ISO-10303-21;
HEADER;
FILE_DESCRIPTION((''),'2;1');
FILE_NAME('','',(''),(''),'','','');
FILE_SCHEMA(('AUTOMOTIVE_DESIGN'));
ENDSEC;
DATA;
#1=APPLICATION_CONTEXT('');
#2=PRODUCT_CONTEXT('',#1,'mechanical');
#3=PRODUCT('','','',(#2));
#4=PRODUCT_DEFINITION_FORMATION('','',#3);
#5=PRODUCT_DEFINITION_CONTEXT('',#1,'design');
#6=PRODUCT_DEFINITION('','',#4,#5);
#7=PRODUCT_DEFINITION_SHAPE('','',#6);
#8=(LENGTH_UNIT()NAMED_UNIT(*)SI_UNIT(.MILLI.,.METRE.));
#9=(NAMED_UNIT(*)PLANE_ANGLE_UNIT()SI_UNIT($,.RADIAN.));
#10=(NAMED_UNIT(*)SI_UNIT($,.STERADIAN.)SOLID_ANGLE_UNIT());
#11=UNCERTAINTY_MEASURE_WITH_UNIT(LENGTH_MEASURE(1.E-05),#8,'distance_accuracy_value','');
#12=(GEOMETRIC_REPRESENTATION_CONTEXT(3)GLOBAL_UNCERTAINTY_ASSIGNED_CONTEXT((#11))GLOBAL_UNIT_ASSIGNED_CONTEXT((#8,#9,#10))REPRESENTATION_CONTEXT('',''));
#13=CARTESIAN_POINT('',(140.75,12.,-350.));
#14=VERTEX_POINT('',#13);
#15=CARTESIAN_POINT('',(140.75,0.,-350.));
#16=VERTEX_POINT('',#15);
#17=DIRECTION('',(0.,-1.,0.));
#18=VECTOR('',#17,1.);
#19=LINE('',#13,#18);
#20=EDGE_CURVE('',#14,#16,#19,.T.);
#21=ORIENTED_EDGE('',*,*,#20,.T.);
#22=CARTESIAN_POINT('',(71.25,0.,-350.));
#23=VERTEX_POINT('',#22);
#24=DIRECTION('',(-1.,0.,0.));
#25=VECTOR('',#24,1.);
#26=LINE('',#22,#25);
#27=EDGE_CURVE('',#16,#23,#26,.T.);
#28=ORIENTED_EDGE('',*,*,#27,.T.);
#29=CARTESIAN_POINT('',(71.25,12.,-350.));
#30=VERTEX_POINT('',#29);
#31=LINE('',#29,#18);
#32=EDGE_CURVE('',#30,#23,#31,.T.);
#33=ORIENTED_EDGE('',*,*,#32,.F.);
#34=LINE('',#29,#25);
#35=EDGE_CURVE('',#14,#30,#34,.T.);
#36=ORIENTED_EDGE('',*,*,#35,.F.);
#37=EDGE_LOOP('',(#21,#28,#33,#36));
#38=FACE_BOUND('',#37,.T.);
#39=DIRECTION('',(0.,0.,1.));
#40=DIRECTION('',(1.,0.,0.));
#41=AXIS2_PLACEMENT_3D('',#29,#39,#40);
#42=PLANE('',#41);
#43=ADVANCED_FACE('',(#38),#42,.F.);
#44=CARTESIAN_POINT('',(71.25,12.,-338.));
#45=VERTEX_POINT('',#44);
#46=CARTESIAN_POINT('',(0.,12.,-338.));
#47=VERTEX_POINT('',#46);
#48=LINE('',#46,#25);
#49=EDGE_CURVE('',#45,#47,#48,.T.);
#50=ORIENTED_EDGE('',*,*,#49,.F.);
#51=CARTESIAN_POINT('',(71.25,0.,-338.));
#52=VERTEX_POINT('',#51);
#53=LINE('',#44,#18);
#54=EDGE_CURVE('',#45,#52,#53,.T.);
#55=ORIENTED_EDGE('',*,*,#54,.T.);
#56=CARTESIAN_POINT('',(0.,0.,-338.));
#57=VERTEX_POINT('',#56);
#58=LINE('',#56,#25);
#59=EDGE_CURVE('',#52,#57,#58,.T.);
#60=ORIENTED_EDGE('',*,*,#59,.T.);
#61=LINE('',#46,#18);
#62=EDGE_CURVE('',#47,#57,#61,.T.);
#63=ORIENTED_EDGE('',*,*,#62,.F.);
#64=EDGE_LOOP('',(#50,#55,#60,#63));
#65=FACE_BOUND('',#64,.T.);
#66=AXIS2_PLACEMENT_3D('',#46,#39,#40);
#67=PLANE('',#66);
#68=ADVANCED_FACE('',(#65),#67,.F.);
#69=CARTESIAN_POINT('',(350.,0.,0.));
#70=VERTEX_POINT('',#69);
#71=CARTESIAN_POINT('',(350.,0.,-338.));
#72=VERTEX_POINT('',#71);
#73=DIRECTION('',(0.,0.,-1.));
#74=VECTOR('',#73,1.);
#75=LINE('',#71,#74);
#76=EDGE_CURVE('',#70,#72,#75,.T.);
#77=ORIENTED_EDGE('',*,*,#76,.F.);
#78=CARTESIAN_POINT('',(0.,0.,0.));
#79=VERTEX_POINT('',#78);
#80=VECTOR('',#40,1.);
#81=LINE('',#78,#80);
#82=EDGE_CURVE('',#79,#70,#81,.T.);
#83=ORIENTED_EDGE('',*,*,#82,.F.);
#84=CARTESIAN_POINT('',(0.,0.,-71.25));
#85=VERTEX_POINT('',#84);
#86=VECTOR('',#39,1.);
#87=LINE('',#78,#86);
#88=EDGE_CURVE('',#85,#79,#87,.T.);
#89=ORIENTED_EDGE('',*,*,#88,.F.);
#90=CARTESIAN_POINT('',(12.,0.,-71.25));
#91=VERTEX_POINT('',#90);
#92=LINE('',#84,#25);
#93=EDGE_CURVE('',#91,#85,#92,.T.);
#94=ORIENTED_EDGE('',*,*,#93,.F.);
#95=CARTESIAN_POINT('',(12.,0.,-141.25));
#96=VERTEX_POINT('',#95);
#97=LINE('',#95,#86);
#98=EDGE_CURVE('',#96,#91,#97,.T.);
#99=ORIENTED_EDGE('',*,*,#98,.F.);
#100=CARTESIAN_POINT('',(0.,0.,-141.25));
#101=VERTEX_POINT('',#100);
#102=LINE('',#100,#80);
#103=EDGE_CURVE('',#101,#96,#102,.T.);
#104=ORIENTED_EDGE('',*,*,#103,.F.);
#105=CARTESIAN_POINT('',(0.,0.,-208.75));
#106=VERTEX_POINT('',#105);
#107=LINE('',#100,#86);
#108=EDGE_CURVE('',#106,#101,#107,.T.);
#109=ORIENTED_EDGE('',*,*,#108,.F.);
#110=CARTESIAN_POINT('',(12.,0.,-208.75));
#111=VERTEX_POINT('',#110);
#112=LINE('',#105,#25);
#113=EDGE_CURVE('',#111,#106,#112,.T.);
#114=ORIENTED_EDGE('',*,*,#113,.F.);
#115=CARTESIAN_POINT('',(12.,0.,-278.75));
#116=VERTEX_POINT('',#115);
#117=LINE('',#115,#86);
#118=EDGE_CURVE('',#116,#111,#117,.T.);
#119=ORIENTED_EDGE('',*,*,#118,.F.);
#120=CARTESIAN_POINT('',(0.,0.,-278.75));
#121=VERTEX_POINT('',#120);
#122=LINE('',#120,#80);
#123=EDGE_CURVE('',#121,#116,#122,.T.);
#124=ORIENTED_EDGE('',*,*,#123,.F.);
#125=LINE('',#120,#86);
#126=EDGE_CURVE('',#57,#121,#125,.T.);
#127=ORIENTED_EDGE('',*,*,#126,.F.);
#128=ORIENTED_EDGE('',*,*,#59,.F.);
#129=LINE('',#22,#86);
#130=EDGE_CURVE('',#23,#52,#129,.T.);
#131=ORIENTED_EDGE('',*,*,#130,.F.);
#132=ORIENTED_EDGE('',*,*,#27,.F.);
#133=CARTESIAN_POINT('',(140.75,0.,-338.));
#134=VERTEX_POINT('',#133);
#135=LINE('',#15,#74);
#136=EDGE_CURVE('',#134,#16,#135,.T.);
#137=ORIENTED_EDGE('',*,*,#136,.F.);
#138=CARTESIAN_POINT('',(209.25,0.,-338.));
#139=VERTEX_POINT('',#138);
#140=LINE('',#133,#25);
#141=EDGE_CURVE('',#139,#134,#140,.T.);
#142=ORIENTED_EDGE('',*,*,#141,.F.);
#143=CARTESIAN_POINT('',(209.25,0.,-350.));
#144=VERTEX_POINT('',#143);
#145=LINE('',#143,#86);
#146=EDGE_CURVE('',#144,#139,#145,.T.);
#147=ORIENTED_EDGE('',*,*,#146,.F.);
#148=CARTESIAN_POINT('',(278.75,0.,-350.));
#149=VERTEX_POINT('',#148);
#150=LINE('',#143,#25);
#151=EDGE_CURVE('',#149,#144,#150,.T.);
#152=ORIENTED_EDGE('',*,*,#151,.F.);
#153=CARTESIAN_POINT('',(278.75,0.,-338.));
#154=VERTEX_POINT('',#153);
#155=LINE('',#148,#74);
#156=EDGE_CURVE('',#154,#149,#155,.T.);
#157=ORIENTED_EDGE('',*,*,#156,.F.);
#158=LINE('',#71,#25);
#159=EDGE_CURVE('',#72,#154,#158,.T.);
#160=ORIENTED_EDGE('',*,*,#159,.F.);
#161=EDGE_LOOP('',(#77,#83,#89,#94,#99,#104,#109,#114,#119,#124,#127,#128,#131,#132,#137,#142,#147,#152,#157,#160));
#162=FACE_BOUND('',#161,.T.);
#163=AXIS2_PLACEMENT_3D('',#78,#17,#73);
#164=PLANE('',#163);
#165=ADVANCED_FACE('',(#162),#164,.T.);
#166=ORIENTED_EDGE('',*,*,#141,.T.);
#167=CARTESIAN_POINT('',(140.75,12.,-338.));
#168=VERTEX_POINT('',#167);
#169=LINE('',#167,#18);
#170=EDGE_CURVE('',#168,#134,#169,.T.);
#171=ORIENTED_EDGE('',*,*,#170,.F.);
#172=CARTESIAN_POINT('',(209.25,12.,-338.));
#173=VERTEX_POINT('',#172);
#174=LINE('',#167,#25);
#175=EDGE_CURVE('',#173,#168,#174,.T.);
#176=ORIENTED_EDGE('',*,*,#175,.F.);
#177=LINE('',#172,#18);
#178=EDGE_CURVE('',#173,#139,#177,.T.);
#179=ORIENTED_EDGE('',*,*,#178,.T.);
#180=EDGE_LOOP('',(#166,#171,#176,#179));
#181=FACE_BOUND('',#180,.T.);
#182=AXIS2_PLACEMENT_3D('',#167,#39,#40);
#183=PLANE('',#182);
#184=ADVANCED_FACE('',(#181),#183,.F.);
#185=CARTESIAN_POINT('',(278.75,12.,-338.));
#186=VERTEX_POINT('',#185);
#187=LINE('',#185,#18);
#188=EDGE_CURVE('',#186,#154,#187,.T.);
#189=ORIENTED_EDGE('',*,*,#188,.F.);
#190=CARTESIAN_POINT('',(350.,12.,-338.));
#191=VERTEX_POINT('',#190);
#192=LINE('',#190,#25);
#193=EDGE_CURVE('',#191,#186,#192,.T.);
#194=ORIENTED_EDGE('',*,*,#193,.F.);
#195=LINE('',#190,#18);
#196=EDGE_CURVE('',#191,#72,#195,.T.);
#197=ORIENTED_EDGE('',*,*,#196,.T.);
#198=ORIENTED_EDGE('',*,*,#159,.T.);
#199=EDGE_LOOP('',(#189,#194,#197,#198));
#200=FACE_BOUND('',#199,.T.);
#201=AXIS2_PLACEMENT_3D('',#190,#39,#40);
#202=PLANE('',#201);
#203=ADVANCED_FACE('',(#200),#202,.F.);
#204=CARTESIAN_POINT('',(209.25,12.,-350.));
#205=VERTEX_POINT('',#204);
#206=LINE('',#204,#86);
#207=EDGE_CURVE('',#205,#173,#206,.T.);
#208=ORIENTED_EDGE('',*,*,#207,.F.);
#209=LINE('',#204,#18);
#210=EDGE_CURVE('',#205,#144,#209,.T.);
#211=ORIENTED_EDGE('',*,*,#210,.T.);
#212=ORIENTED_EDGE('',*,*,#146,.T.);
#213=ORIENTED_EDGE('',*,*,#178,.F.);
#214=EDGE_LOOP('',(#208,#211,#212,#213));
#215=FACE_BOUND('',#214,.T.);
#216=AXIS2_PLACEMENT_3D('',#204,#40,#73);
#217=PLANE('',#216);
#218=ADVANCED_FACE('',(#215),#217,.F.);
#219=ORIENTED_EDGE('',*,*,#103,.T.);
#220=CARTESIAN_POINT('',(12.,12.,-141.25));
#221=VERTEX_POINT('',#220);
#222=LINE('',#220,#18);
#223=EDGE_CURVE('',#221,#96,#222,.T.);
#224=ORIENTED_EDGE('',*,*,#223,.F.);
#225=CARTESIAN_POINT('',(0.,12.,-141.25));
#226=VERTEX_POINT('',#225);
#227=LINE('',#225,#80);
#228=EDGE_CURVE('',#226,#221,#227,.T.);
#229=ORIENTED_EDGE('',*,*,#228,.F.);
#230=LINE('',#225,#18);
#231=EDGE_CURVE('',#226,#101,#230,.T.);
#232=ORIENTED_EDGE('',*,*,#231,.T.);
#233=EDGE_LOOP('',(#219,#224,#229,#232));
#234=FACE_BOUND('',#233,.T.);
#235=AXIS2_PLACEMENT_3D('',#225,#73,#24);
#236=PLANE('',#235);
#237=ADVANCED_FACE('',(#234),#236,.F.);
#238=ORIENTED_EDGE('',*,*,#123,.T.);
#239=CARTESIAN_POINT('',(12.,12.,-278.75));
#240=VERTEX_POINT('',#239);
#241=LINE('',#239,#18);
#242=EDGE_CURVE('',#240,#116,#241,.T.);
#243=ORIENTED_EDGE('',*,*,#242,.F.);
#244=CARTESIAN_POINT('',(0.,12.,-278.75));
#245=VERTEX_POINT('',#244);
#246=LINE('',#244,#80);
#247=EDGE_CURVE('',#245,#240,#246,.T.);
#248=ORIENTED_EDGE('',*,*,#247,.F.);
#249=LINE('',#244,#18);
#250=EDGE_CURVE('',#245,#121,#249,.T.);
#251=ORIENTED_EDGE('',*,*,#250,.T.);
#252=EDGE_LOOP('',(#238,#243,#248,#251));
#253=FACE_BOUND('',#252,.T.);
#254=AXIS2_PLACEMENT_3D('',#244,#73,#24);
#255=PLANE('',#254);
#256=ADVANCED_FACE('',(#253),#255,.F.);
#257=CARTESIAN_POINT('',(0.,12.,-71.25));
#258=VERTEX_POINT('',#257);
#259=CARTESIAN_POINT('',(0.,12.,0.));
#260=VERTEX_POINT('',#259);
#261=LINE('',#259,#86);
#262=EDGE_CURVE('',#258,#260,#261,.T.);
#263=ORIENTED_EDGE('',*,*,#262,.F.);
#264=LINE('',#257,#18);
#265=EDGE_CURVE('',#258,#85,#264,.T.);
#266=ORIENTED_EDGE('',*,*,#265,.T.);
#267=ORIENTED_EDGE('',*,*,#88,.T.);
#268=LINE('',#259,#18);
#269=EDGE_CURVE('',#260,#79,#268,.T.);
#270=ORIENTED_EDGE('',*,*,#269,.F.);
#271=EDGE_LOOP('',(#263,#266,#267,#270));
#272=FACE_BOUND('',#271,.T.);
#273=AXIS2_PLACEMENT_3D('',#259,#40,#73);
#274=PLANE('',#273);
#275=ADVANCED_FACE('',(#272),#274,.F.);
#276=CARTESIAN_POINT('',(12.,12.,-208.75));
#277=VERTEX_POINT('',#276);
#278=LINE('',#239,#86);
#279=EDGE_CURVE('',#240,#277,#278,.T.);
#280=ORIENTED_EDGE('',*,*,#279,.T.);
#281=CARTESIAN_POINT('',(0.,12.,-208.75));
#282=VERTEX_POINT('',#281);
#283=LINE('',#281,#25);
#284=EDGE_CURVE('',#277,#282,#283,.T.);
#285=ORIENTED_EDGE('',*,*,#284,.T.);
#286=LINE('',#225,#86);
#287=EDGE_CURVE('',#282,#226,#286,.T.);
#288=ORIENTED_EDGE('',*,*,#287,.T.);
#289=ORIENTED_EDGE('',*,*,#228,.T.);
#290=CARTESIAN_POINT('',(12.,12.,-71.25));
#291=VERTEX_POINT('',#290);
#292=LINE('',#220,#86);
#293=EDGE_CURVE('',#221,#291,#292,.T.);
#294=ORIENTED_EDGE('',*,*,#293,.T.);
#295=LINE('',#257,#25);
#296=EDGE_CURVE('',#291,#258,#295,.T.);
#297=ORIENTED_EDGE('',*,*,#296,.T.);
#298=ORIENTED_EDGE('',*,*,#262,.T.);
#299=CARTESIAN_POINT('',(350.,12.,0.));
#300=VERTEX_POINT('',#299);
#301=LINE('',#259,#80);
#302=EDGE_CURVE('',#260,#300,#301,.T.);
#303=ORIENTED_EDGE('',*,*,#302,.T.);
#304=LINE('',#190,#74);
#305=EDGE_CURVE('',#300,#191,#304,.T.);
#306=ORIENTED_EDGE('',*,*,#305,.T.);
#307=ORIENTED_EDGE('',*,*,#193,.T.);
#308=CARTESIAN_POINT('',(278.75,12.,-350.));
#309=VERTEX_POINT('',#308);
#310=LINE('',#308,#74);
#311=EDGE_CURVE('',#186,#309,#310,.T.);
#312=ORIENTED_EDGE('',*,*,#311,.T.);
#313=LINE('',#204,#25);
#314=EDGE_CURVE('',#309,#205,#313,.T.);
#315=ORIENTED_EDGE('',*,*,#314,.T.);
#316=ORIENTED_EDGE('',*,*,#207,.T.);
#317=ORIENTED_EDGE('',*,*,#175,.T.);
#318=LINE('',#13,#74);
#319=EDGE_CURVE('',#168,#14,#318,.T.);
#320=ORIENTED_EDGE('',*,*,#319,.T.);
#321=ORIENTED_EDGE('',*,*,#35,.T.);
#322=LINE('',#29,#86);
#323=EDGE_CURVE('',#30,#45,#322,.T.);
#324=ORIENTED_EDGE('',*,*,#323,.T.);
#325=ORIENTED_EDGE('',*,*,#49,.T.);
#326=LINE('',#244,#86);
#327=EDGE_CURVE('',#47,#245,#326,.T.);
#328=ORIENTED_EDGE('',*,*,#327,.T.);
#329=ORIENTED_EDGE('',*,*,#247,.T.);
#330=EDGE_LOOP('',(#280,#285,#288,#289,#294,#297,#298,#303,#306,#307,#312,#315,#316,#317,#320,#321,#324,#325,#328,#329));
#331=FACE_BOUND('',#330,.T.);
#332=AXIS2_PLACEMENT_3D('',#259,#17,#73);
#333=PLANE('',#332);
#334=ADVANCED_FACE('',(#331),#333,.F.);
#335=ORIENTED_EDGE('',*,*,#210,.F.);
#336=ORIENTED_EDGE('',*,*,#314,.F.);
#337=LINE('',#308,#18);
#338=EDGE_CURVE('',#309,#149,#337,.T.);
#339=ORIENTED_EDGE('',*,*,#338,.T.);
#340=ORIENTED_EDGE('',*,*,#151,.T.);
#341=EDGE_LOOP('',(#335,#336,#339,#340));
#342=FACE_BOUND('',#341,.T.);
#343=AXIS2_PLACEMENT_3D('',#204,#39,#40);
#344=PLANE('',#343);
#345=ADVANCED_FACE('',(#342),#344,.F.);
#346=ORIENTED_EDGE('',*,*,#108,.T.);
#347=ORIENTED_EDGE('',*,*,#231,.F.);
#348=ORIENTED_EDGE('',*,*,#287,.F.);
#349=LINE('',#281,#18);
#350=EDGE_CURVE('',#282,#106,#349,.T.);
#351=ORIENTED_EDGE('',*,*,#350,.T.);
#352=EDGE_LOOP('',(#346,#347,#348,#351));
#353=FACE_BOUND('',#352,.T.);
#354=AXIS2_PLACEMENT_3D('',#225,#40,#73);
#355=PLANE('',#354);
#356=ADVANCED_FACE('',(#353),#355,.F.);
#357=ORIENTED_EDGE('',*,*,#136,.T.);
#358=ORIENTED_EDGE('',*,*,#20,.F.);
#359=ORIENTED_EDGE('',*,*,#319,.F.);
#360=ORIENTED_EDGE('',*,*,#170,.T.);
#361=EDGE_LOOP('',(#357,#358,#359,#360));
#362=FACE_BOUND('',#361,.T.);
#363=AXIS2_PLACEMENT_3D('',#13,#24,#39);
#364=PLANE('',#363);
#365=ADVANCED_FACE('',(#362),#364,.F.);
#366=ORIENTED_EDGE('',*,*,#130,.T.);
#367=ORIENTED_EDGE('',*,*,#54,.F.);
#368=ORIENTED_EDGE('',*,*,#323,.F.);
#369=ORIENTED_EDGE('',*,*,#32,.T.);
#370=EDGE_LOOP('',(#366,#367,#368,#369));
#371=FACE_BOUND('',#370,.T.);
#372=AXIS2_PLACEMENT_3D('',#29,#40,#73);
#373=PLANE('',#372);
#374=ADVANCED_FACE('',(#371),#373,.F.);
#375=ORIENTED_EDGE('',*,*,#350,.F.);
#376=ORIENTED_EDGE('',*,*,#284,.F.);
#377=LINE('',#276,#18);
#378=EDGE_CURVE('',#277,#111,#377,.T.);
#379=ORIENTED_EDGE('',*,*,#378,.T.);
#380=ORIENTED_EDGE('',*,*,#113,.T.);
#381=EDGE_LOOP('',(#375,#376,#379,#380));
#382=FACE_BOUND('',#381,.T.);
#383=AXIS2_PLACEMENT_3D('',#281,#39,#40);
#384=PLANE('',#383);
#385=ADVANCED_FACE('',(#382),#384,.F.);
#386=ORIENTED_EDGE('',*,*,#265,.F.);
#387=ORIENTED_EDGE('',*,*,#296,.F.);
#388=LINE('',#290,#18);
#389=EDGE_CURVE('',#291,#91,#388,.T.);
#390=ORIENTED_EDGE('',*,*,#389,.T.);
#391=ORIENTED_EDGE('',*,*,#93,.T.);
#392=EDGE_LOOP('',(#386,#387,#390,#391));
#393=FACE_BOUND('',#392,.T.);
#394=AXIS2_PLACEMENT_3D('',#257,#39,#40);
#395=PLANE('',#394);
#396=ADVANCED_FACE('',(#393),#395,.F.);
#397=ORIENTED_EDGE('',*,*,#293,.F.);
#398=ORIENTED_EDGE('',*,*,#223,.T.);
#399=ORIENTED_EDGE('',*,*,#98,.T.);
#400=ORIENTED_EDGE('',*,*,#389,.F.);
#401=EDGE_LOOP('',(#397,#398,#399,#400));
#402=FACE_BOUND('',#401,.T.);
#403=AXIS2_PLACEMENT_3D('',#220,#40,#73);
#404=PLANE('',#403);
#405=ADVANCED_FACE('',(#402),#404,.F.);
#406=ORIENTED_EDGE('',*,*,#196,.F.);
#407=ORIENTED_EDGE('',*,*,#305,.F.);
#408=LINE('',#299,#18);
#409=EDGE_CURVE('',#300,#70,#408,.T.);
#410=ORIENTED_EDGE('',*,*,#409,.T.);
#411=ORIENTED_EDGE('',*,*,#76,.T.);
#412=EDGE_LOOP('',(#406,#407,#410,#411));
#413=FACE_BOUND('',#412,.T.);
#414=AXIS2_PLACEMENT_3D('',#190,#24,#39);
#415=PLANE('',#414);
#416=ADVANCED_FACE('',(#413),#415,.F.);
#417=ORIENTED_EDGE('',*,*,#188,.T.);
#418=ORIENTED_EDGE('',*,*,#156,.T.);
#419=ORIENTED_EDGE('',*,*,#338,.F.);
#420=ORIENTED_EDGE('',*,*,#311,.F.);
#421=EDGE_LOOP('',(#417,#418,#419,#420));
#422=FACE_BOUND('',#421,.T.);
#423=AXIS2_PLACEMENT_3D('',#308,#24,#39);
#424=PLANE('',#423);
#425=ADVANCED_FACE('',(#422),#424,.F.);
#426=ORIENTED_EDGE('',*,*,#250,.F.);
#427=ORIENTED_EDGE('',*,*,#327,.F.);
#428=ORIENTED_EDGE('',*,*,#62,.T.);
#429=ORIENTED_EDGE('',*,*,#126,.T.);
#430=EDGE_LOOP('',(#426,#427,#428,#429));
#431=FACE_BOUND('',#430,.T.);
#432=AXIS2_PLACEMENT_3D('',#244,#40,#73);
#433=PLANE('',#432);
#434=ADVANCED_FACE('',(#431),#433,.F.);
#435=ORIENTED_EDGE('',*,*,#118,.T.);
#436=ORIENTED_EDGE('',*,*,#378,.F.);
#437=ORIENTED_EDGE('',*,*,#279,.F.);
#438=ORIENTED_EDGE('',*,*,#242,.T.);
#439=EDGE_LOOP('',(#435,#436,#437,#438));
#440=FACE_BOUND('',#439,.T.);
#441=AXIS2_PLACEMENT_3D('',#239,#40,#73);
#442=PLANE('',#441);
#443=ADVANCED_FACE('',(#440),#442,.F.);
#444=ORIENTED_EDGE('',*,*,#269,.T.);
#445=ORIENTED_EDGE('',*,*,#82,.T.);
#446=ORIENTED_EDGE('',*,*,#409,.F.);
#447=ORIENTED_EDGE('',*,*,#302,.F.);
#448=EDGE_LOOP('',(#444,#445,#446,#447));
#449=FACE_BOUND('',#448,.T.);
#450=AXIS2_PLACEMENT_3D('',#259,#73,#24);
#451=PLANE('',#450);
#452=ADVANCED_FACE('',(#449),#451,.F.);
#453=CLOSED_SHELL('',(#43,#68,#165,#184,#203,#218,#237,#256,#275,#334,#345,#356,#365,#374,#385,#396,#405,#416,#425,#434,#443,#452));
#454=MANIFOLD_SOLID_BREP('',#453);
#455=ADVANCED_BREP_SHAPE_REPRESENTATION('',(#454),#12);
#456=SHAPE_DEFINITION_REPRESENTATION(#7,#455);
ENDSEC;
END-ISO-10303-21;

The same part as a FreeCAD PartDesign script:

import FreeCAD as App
import Part
import Sketcher
Q = App.Units.Quantity

doc = App.newDocument("Part")
body = doc.addObject("PartDesign::Body", "Body")

# Sketch on XZ plane
sketch1 = body.newObject("Sketcher::SketchObject", "Sketch")
sketch1.AttachmentSupport = (doc.getObject("XZ_Plane"), [""])
sketch1.MapMode = "FlatFace"
sketch1.addGeometry(Part.LineSegment(App.Vector(279, -350, 0), App.Vector(209, -350, 0)), False)
sketch1.addGeometry(Part.LineSegment(App.Vector(209, -350, 0), App.Vector(209, -338, 0)), False)
sketch1.addGeometry(Part.LineSegment(App.Vector(209, -338, 0), App.Vector(141, -338, 0)), False)
sketch1.addGeometry(Part.LineSegment(App.Vector(141, -338, 0), App.Vector(141, -350, 0)), False)
sketch1.addGeometry(Part.LineSegment(App.Vector(141, -350, 0), App.Vector(71, -350, 0)), False)
sketch1.addGeometry(Part.LineSegment(App.Vector(71, -350, 0), App.Vector(71, -338, 0)), False)
sketch1.addGeometry(Part.LineSegment(App.Vector(71, -338, 0), App.Vector(0, -338, 0)), False)
sketch1.addGeometry(Part.LineSegment(App.Vector(0, -338, 0), App.Vector(0, -279, 0)), False)
sketch1.addGeometry(Part.LineSegment(App.Vector(0, -279, 0), App.Vector(12, -279, 0)), False)
sketch1.addGeometry(Part.LineSegment(App.Vector(12, -279, 0), App.Vector(12, -209, 0)), False)
sketch1.addGeometry(Part.LineSegment(App.Vector(12, -209, 0), App.Vector(0, -209, 0)), False)
sketch1.addGeometry(Part.LineSegment(App.Vector(0, -209, 0), App.Vector(0, -141, 0)), False)
sketch1.addGeometry(Part.LineSegment(App.Vector(0, -141, 0), App.Vector(12, -141, 0)), False)
sketch1.addGeometry(Part.LineSegment(App.Vector(12, -141, 0), App.Vector(12, -71, 0)), False)
sketch1.addGeometry(Part.LineSegment(App.Vector(12, -71, 0), App.Vector(0, -71, 0)), False)
sketch1.addGeometry(Part.LineSegment(App.Vector(0, -71, 0), App.Vector(0, 0, 0)), False)
sketch1.addGeometry(Part.LineSegment(App.Vector(0, 0, 0), App.Vector(350, 0, 0)), False)
sketch1.addGeometry(Part.LineSegment(App.Vector(350, 0, 0), App.Vector(350, -338, 0)), False)
sketch1.addGeometry(Part.LineSegment(App.Vector(350, -338, 0), App.Vector(279, -338, 0)), False)
sketch1.addGeometry(Part.LineSegment(App.Vector(279, -338, 0), App.Vector(279, -350, 0)), False)
sketch1.addConstraint(Sketcher.Constraint("Coincident", 0, 2, 1, 1))
sketch1.addConstraint(Sketcher.Constraint("Coincident", 1, 2, 2, 1))
sketch1.addConstraint(Sketcher.Constraint("Coincident", 2, 2, 3, 1))
sketch1.addConstraint(Sketcher.Constraint("Coincident", 3, 2, 4, 1))
sketch1.addConstraint(Sketcher.Constraint("Coincident", 4, 2, 5, 1))
sketch1.addConstraint(Sketcher.Constraint("Coincident", 5, 2, 6, 1))
sketch1.addConstraint(Sketcher.Constraint("Coincident", 6, 2, 7, 1))
sketch1.addConstraint(Sketcher.Constraint("Coincident", 7, 2, 8, 1))
sketch1.addConstraint(Sketcher.Constraint("Coincident", 8, 2, 9, 1))
sketch1.addConstraint(Sketcher.Constraint("Coincident", 9, 2, 10, 1))
sketch1.addConstraint(Sketcher.Constraint("Coincident", 10, 2, 11, 1))
sketch1.addConstraint(Sketcher.Constraint("Coincident", 11, 2, 12, 1))
sketch1.addConstraint(Sketcher.Constraint("Coincident", 12, 2, 13, 1))
sketch1.addConstraint(Sketcher.Constraint("Coincident", 13, 2, 14, 1))
sketch1.addConstraint(Sketcher.Constraint("Coincident", 14, 2, 15, 1))
sketch1.addConstraint(Sketcher.Constraint("Coincident", 15, 2, 16, 1))
sketch1.addConstraint(Sketcher.Constraint("Coincident", 16, 2, 17, 1))
sketch1.addConstraint(Sketcher.Constraint("Coincident", 17, 2, 18, 1))
sketch1.addConstraint(Sketcher.Constraint("Coincident", 18, 2, 19, 1))
sketch1.addConstraint(Sketcher.Constraint("Coincident", 19, 2, 0, 1))
sketch1.addConstraint(Sketcher.Constraint("Horizontal", 0))
sketch1.addConstraint(Sketcher.Constraint("Vertical", 1))
sketch1.addConstraint(Sketcher.Constraint("Horizontal", 2))
sketch1.addConstraint(Sketcher.Constraint("Vertical", 3))
sketch1.addConstraint(Sketcher.Constraint("Horizontal", 4))
sketch1.addConstraint(Sketcher.Constraint("Vertical", 5))
sketch1.addConstraint(Sketcher.Constraint("Horizontal", 6))
sketch1.addConstraint(Sketcher.Constraint("Vertical", 7))
sketch1.addConstraint(Sketcher.Constraint("Horizontal", 8))
sketch1.addConstraint(Sketcher.Constraint("Vertical", 9))
sketch1.addConstraint(Sketcher.Constraint("Horizontal", 10))
sketch1.addConstraint(Sketcher.Constraint("Vertical", 11))
sketch1.addConstraint(Sketcher.Constraint("Horizontal", 12))
sketch1.addConstraint(Sketcher.Constraint("Vertical", 13))
sketch1.addConstraint(Sketcher.Constraint("Horizontal", 14))
sketch1.addConstraint(Sketcher.Constraint("Vertical", 15))
sketch1.addConstraint(Sketcher.Constraint("Horizontal", 16))
sketch1.addConstraint(Sketcher.Constraint("Vertical", 17))
sketch1.addConstraint(Sketcher.Constraint("Horizontal", 18))
sketch1.addConstraint(Sketcher.Constraint("Vertical", 19))
sketch1.addConstraint(Sketcher.Constraint("Coincident", 15, 2, -1, 1))
sketch1.addConstraint(Sketcher.Constraint("PointOnObject", 6, 2, -2))
sketch1.addConstraint(Sketcher.Constraint("PointOnObject", 10, 2, -2))
sketch1.addConstraint(Sketcher.Constraint("Horizontal", 0, 2, 3, 2))
sketch1.addConstraint(Sketcher.Constraint("Horizontal", 2, 2, 5, 2))
sketch1.addConstraint(Sketcher.Constraint("Horizontal", 6, 2, 17, 2))
sketch1.addConstraint(Sketcher.Constraint("Vertical", 9, 2, 12, 2))
sketch1.addConstraint(Sketcher.Constraint("Equal", 0, 4))
sketch1.addConstraint(Sketcher.Constraint("Equal", 6, 18))
sketch1.addConstraint(Sketcher.Constraint("Equal", 14, 1))
sketch1.addConstraint(Sketcher.Constraint("Equal", 9, 13))
sketch1.addConstraint(Sketcher.Constraint("Equal", 18, 15))
sketch1.addConstraint(Sketcher.Constraint("DistanceX", 8, 1, 8, 2, Q("12 mm")))
sketch1.addConstraint(Sketcher.Constraint("DistanceX", 16, 1, 16, 2, Q("350 mm")))
sketch1.addConstraint(Sketcher.Constraint("DistanceY", 9, 1, 9, 2, Q("70 mm")))
sketch1.addConstraint(Sketcher.Constraint("DistanceY", 17, 2, 17, 1, Q("338 mm")))
sketch1.addConstraint(Sketcher.Constraint("DistanceX", 0, 2, 0, 1, Q("69.5 mm")))
sketch1.addConstraint(Sketcher.Constraint("DistanceX", 2, 2, 2, 1, Q("68.5 mm")))
sketch1.addConstraint(Sketcher.Constraint("DistanceY", 11, 1, 11, 2, Q("67.5 mm")))
pad1 = body.newObject("PartDesign::Pad", "Pad")
pad1.Profile = sketch1
pad1.Length = 12
pad1.Reversed = True

doc.recompute()
